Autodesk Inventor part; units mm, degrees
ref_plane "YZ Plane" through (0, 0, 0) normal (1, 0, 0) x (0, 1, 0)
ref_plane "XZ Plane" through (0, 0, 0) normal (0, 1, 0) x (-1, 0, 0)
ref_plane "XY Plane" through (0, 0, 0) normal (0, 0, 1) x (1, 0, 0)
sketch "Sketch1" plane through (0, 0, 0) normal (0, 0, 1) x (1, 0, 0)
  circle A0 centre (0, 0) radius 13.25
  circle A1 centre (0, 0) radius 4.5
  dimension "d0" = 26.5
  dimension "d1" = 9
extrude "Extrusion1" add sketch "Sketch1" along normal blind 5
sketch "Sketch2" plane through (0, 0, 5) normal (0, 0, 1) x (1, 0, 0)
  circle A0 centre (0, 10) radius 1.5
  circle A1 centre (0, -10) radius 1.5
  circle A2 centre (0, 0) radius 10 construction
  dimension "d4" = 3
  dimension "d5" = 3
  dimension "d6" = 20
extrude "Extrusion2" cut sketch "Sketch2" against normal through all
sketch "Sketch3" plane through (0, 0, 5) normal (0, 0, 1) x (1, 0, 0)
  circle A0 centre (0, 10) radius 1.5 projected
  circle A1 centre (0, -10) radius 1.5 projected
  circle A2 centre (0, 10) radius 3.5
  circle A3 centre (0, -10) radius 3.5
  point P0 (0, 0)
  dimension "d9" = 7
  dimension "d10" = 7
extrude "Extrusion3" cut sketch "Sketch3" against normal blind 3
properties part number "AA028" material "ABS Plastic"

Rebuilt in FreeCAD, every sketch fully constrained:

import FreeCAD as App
import Part
import Sketcher

doc = App.newDocument("Part")
body = doc.addObject("PartDesign::Body", "Body")

# Sketch on XY plane
sketch1 = body.newObject("Sketcher::SketchObject", "Sketch")
sketch1.AttachmentSupport = (doc.getObject("XY_Plane"), [""])
sketch1.MapMode = "FlatFace"
sketch1.addGeometry([
    Part.Circle(App.Vector(0, 0, 0), App.Vector(0, 0, 1), 13.2),
    Part.Circle(App.Vector(0, 0, 0), App.Vector(0, 0, 1), 4.5),
], False)
sketch1.addConstraint([
    Sketcher.Constraint("Coincident", 0, 3, -1, 1),
    Sketcher.Constraint("Coincident", 1, 3, -1, 1),
    Sketcher.Constraint("Diameter", 1, 9.0),
    Sketcher.Constraint("Diameter", 0, 26.5),
])
pad1 = body.newObject("PartDesign::Pad", "Pad")
pad1.Profile = sketch1
pad1.Length = 5

# Sketch on XY plane
sketch2 = body.newObject("Sketcher::SketchObject", "Sketch001")
sketch2.AttachmentSupport = (doc.getObject("XY_Plane"), [""])
sketch2.MapMode = "FlatFace"
sketch2.AttachmentOffset = App.Placement(App.Vector(0, 0, 5), App.Rotation())
sketch2.addGeometry([
    Part.Circle(App.Vector(0, 10, 0), App.Vector(0, 0, 1), 1.5),
    Part.Circle(App.Vector(0, -10, 0), App.Vector(0, 0, 1), 1.5),
], False)
sketch2.addConstraint([
    Sketcher.Constraint("Equal", 0, 1),
    Sketcher.Constraint("Symmetric", 0, 3, 1, 3, -1, 1),
    Sketcher.Constraint("PointOnObject", 0, 3, -2),
    Sketcher.Constraint("Diameter", 0, 3.0),
    Sketcher.Constraint("DistanceY", 1, 3, 0, 3, 20.0),
])
pocket1 = body.newObject("PartDesign::Pocket", "Pocket")
pocket1.Profile = sketch2
pocket1.Type = "ThroughAll"

# Sketch on XY plane
sketch3 = body.newObject("Sketcher::SketchObject", "Sketch002")
sketch3.AttachmentSupport = (doc.getObject("XY_Plane"), [""])
sketch3.MapMode = "FlatFace"
sketch3.AttachmentOffset = App.Placement(App.Vector(0, 0, 5), App.Rotation())
sketch3.addGeometry([
    Part.Circle(App.Vector(0, 10, 0), App.Vector(0, 0, 1), 3.5),
    Part.Circle(App.Vector(0, 10, 0), App.Vector(0, 0, 1), 1.5),
    Part.Circle(App.Vector(0, -10, 0), App.Vector(0, 0, 1), 3.5),
    Part.Circle(App.Vector(0, -10, 0), App.Vector(0, 0, 1), 1.5),
], False)
sketch3.addConstraint([
    Sketcher.Constraint("Coincident", 1, 3, 0, 3),
    Sketcher.Constraint("Coincident", 3, 3, 2, 3),
    Sketcher.Constraint("Equal", 0, 2),
    Sketcher.Constraint("Equal", 1, 3),
    Sketcher.Constraint("Symmetric", 0, 3, 2, 3, -1, 1),
    Sketcher.Constraint("PointOnObject", 0, 3, -2),
    Sketcher.Constraint("Diameter", 0, 7.0),
    Sketcher.Constraint("Diameter", 1, 3.0),
    Sketcher.Constraint("DistanceY", -1, 1, 0, 3, 10.0),
])
pocket2 = body.newObject("PartDesign::Pocket", "Pocket001")
pocket2.Profile = sketch3
pocket2.Length = 3

doc.recompute()
